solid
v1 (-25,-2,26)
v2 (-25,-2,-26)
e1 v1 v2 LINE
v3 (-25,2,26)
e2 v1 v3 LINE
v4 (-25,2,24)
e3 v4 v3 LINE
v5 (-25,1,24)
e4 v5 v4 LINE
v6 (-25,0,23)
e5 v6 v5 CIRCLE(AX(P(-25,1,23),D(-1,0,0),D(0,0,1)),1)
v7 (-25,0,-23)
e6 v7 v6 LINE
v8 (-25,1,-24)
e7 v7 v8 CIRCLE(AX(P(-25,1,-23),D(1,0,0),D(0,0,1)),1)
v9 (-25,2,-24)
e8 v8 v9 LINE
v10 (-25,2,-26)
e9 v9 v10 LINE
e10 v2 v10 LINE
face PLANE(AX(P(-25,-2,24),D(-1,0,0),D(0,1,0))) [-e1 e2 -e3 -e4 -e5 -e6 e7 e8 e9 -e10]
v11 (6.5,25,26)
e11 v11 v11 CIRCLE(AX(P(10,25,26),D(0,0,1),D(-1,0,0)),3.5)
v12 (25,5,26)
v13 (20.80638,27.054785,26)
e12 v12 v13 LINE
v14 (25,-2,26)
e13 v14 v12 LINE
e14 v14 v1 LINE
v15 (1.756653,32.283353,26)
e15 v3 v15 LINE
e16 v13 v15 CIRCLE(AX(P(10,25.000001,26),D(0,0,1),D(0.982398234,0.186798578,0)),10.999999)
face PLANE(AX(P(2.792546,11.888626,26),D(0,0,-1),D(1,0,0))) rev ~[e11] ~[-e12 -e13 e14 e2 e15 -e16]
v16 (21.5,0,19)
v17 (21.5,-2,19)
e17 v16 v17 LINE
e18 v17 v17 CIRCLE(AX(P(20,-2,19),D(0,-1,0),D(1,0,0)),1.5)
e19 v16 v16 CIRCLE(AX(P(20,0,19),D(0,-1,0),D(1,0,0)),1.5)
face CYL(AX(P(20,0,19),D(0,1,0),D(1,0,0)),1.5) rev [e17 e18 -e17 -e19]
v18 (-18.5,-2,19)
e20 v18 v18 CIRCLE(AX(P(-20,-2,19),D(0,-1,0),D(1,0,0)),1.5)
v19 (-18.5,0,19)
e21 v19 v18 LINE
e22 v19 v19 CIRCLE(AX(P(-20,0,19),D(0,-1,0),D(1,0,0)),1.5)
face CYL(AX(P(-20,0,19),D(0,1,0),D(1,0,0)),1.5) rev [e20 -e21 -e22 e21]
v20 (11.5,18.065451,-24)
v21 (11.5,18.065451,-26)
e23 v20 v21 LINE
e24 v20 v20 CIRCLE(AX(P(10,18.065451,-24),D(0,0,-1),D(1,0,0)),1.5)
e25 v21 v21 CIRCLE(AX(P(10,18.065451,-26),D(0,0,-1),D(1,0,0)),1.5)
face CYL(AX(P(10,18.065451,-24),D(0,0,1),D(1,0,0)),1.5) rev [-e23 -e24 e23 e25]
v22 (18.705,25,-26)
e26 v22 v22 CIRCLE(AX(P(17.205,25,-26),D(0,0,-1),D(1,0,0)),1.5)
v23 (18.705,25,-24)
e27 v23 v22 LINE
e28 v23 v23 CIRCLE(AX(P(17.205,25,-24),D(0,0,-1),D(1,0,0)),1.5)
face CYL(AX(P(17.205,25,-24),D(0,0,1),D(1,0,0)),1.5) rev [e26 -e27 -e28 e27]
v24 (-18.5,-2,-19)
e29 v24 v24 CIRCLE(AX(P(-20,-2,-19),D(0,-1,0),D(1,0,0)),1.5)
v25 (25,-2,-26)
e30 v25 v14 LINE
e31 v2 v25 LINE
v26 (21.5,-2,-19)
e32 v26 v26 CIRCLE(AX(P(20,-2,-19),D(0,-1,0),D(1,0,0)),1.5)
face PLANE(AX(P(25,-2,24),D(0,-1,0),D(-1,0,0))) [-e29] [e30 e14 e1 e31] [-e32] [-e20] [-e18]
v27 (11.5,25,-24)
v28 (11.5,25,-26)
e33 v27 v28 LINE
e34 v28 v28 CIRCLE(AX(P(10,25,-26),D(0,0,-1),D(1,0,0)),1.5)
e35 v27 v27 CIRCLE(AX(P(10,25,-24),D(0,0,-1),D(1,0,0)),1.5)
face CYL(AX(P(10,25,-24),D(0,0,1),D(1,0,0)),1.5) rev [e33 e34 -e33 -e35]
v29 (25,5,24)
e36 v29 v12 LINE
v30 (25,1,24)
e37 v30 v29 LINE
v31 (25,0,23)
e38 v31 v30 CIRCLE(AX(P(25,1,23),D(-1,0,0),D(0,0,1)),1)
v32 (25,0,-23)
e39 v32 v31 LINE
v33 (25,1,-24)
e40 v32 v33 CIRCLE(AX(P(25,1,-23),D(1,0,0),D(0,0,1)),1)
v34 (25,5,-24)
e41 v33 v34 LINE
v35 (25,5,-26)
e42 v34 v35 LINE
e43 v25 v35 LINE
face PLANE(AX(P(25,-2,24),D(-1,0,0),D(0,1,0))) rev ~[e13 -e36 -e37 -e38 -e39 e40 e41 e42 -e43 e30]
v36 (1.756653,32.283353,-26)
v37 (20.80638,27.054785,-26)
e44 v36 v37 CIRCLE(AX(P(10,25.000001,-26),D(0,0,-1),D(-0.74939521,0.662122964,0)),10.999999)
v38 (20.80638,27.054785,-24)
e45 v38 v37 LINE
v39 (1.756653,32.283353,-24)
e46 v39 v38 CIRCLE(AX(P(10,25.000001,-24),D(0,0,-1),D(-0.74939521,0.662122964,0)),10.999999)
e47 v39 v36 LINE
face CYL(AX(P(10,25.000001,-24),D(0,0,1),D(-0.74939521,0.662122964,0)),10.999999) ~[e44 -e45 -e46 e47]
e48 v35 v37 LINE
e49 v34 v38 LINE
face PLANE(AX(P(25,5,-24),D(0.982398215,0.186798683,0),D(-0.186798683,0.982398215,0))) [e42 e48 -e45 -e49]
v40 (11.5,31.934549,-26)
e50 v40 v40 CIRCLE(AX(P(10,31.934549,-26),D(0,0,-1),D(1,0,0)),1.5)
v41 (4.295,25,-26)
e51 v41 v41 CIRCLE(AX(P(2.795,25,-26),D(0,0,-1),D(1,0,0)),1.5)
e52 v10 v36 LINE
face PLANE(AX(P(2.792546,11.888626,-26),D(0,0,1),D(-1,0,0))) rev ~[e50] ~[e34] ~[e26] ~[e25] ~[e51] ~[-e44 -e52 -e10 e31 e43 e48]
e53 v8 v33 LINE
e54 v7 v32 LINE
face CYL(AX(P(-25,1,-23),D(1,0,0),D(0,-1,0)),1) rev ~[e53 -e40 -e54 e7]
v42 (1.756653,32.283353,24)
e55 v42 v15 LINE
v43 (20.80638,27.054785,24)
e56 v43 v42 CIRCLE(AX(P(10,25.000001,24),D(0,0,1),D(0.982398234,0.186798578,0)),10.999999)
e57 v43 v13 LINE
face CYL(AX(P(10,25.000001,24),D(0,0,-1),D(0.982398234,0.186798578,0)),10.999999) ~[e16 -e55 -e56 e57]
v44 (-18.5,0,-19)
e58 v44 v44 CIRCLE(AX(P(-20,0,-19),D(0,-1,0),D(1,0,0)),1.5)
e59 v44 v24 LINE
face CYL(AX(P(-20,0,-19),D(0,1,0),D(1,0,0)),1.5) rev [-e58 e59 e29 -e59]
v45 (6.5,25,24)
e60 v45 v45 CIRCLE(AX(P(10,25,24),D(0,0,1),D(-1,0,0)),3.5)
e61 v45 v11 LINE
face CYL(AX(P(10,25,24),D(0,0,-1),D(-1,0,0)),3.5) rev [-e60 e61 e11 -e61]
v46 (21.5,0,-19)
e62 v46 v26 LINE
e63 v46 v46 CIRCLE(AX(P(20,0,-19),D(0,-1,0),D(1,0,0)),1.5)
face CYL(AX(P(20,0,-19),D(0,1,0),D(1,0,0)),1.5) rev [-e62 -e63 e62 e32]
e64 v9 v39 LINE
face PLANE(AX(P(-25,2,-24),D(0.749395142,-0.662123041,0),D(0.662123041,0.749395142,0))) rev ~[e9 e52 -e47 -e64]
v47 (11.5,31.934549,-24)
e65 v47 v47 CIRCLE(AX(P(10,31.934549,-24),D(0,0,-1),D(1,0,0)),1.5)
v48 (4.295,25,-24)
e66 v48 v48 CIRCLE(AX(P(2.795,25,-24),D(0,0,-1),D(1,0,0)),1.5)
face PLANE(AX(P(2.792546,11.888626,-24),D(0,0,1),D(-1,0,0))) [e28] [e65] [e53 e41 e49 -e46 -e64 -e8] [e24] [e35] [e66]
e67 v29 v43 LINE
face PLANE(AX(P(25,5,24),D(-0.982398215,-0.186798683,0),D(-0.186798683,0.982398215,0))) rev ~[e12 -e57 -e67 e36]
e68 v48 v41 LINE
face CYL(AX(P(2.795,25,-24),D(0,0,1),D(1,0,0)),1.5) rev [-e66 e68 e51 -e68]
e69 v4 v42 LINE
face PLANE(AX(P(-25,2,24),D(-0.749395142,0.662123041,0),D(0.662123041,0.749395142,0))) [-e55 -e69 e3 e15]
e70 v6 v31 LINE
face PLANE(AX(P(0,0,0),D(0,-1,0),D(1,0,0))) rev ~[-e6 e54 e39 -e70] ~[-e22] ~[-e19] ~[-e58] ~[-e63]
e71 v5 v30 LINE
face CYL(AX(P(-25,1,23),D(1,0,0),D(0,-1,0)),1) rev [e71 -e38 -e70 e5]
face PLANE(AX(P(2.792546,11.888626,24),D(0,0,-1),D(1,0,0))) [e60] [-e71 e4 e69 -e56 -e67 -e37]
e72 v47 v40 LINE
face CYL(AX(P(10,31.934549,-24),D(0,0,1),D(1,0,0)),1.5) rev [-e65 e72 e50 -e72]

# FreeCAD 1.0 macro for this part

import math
import FreeCAD as App
import Part
import Sketcher
from FreeCAD import Vector


def edges_at(feature, points):
    """Names of the edges that pass closest to the given points."""
    edges = feature.Shape.Edges
    near = lambda p: min(range(len(edges)), key=lambda i: edges[i].distToShape(Part.Vertex(*p))[0])
    return sorted({f"Edge{near(p) + 1}" for p in points})

doc = App.newDocument("Part")
body = doc.addObject("PartDesign::Body", "Body")

# Sketch on XZ plane
sketch1 = body.newObject("Sketcher::SketchObject", "Sketch")
sketch1.AttachmentSupport = (doc.getObject("XZ_Plane"), [""])
sketch1.MapMode = "FlatFace"
sketch1.addGeometry(Part.LineSegment(Vector(-25, 24, 0), Vector(-25, -24, 0)), False)
sketch1.addGeometry(Part.LineSegment(Vector(-25, -24, 0), Vector(25, -24, 0)), False)
sketch1.addGeometry(Part.LineSegment(Vector(25, -24, 0), Vector(25, 24, 0)), False)
sketch1.addGeometry(Part.LineSegment(Vector(25, 24, 0), Vector(-25, 24, 0)), False)
sketch1.addGeometry(Part.Circle(Vector(-20, -19, 0), Vector(0, 0, 1), 1.5), False)
sketch1.addGeometry(Part.Circle(Vector(20, -19, 0), Vector(0, 0, 1), 1.5), False)
sketch1.addGeometry(Part.Circle(Vector(-20, 19, 0), Vector(0, 0, 1), 1.5), False)
sketch1.addGeometry(Part.Circle(Vector(20, 19, 0), Vector(0, 0, 1), 1.5), False)
sketch1.addConstraint(Sketcher.Constraint("Coincident", 0, 2, 1, 1))
sketch1.addConstraint(Sketcher.Constraint("Coincident", 1, 2, 2, 1))
sketch1.addConstraint(Sketcher.Constraint("Coincident", 2, 2, 3, 1))
sketch1.addConstraint(Sketcher.Constraint("Coincident", 3, 2, 0, 1))
sketch1.addConstraint(Sketcher.Constraint("Vertical", 0))
sketch1.addConstraint(Sketcher.Constraint("Horizontal", 1))
sketch1.addConstraint(Sketcher.Constraint("Vertical", 2))
sketch1.addConstraint(Sketcher.Constraint("Horizontal", 3))
sketch1.addConstraint(Sketcher.Constraint("Equal", 4, 5))
sketch1.addConstraint(Sketcher.Constraint("Equal", 5, 6))
sketch1.addConstraint(Sketcher.Constraint("Equal", 6, 7))
sketch1.addConstraint(Sketcher.Constraint("Symmetric", 5, 3, 6, 3, -1, 1))
sketch1.addConstraint(Sketcher.Constraint("Symmetric", 4, 3, 7, 3, -1, 1))
sketch1.addConstraint(Sketcher.Constraint("Symmetric", 0, 2, 2, 2, -1, 1))
sketch1.addConstraint(Sketcher.Constraint("Symmetric", 4, 3, 5, 3, -2))
sketch1.addConstraint(Sketcher.Constraint("Diameter", 4, 3.0))
sketch1.addConstraint(Sketcher.Constraint("DistanceX", 1, 1, 1, 2, 50.0))
sketch1.addConstraint(Sketcher.Constraint("DistanceY", 0, 2, 0, 1, 48.0))
sketch1.addConstraint(Sketcher.Constraint("DistanceX", 4, 3, -1, 1, 20.0))
sketch1.addConstraint(Sketcher.Constraint("DistanceY", 4, 3, -1, 1, 19.0))
pad1 = body.newObject("PartDesign::Pad", "Pad")
pad1.Profile = sketch1
pad1.Length = 2

# Sketch on XY plane
sketch2 = body.newObject("Sketcher::SketchObject", "Sketch001")
sketch2.AttachmentSupport = (doc.getObject("XY_Plane"), [""])
sketch2.MapMode = "FlatFace"
sketch2.AttachmentOffset = App.Placement(Vector(0, 0, -24), App.Rotation())
sketch2.addGeometry(Part.LineSegment(Vector(-25, -2, 0), Vector(-25, 2, 0)), False)
sketch2.addGeometry(Part.LineSegment(Vector(-25, 2, 0), Vector(1.8, 32.3, 0)), False)
sketch2.addGeometry(Part.ArcOfCircle(Part.Circle(Vector(10, 25, 0), Vector(0, 0, 1), 11), math.radians(11), math.radians(139)), False)
sketch2.addGeometry(Part.LineSegment(Vector(20.8, 27.1, 0), Vector(25, 5, 0)), False)
sketch2.addGeometry(Part.LineSegment(Vector(25, 5, 0), Vector(25, -2, 0)), False)
sketch2.addGeometry(Part.LineSegment(Vector(25, -2, 0), Vector(-25, -2, 0)), False)
sketch2.addGeometry(Part.Circle(Vector(10, 31.9, 0), Vector(0, 0, 1), 1.5), False)
sketch2.addGeometry(Part.Circle(Vector(17.2, 25, 0), Vector(0, 0, 1), 1.5), False)
sketch2.addGeometry(Part.Circle(Vector(10, 25, 0), Vector(0, 0, 1), 1.5), False)
sketch2.addGeometry(Part.Circle(Vector(10, 18.1, 0), Vector(0, 0, 1), 1.5), False)
sketch2.addGeometry(Part.Circle(Vector(2.8, 25, 0), Vector(0, 0, 1), 1.5), False)
sketch2.addConstraint(Sketcher.Constraint("Coincident", 0, 2, 1, 1))
sketch2.addConstraint(Sketcher.Constraint("Tangent", 1, 2, 2, 2))
sketch2.addConstraint(Sketcher.Constraint("Tangent", 2, 1, 3, 1))
sketch2.addConstraint(Sketcher.Constraint("Coincident", 3, 2, 4, 1))
sketch2.addConstraint(Sketcher.Constraint("Coincident", 4, 2, 5, 1))
sketch2.addConstraint(Sketcher.Constraint("Coincident", 5, 2, 0, 1))
sketch2.addConstraint(Sketcher.Constraint("Vertical", 0))
sketch2.addConstraint(Sketcher.Constraint("Vertical", 4))
sketch2.addConstraint(Sketcher.Constraint("Horizontal", 5))
sketch2.addConstraint(Sketcher.Constraint("Coincident", 8, 3, 2, 3))
sketch2.addConstraint(Sketcher.Constraint("Equal", 6, 7))
sketch2.addConstraint(Sketcher.Constraint("Equal", 7, 8))
sketch2.addConstraint(Sketcher.Constraint("Equal", 8, 9))
sketch2.addConstraint(Sketcher.Constraint("Equal", 9, 10))
sketch2.addConstraint(Sketcher.Constraint("Symmetric", 0, 2, 4, 2, -1, 1))
sketch2.addConstraint(Sketcher.Constraint("Horizontal", 2, 3, 7, 3))
sketch2.addConstraint(Sketcher.Constraint("Horizontal", 8, 3, 10, 3))
sketch2.addConstraint(Sketcher.Constraint("Vertical", 2, 3, 6, 3))
sketch2.addConstraint(Sketcher.Constraint("Vertical", 8, 3, 9, 3))
sketch2.addConstraint(Sketcher.Constraint("Diameter", 6, 3.0))
sketch2.addConstraint(Sketcher.Constraint("Radius", 2, 10.999999))
sketch2.addConstraint(Sketcher.Constraint("DistanceX", 5, 2, 5, 1, 50.0))
sketch2.addConstraint(Sketcher.Constraint("DistanceY", 0, 1, 0, 2, 4.0))
sketch2.addConstraint(Sketcher.Constraint("DistanceY", 4, 2, 4, 1, 7.0))
sketch2.addConstraint(Sketcher.Constraint("DistanceX", -1, 1, 2, 3, 10.0))
sketch2.addConstraint(Sketcher.Constraint("DistanceY", -1, 1, 2, 3, 25.000001))
sketch2.addConstraint(Sketcher.Constraint("DistanceX", 10, 3, 7, 3, 14.41))
sketch2.addConstraint(Sketcher.Constraint("DistanceX", -1, 1, 7, 3, 17.205))
sketch2.addConstraint(Sketcher.Constraint("DistanceY", 9, 3, 6, 3, 13.869098))
sketch2.addConstraint(Sketcher.Constraint("DistanceY", 9, 3, 1, 2, 14.217902))
pad2 = body.newObject("PartDesign::Pad", "Pad001")
pad2.Profile = sketch2
pad2.Length = 2
pad2.Reversed = True

# Sketch on XY plane
sketch3 = body.newObject("Sketcher::SketchObject", "Sketch002")
sketch3.AttachmentSupport = (doc.getObject("XY_Plane"), [""])
sketch3.MapMode = "FlatFace"
sketch3.AttachmentOffset = App.Placement(Vector(0, 0, 24), App.Rotation())
sketch3.addGeometry(Part.LineSegment(Vector(-25, -2, 0), Vector(25, -2, 0)), False)
sketch3.addGeometry(Part.LineSegment(Vector(25, -2, 0), Vector(25, 5, 0)), False)
sketch3.addGeometry(Part.LineSegment(Vector(25, 5, 0), Vector(20.8, 27.1, 0)), False)
sketch3.addGeometry(Part.ArcOfCircle(Part.Circle(Vector(10, 25, 0), Vector(0, 0, 1), 11), math.radians(11), math.radians(139)), False)
sketch3.addGeometry(Part.LineSegment(Vector(1.8, 32.3, 0), Vector(-25, 2, 0)), False)
sketch3.addGeometry(Part.LineSegment(Vector(-25, 2, 0), Vector(-25, -2, 0)), False)
sketch3.addGeometry(Part.Circle(Vector(10, 25, 0), Vector(0, 0, 1), 3.5), False)
sketch3.addConstraint(Sketcher.Constraint("Coincident", 0, 2, 1, 1))
sketch3.addConstraint(Sketcher.Constraint("Coincident", 1, 2, 2, 1))
sketch3.addConstraint(Sketcher.Constraint("Tangent", 2, 2, 3, 1))
sketch3.addConstraint(Sketcher.Constraint("Tangent", 3, 2, 4, 1))
sketch3.addConstraint(Sketcher.Constraint("Coincident", 4, 2, 5, 1))
sketch3.addConstraint(Sketcher.Constraint("Coincident", 5, 2, 0, 1))
sketch3.addConstraint(Sketcher.Constraint("Horizontal", 0))
sketch3.addConstraint(Sketcher.Constraint("Vertical", 1))
sketch3.addConstraint(Sketcher.Constraint("Vertical", 5))
sketch3.addConstraint(Sketcher.Constraint("Coincident", 6, 3, 3, 3))
sketch3.addConstraint(Sketcher.Constraint("Symmetric", 0, 2, 4, 2, -1, 1))
sketch3.addConstraint(Sketcher.Constraint("Diameter", 6, 7.0))
sketch3.addConstraint(Sketcher.Constraint("Radius", 3, 10.999999))
sketch3.addConstraint(Sketcher.Constraint("DistanceX", 0, 1, 0, 2, 50.0))
sketch3.addConstraint(Sketcher.Constraint("DistanceY", 1, 1, 1, 2, 7.0))
sketch3.addConstraint(Sketcher.Constraint("DistanceY", 5, 2, 5, 1, 4.0))
sketch3.addConstraint(Sketcher.Constraint("DistanceX", -1, 1, 3, 3, 10.0))
sketch3.addConstraint(Sketcher.Constraint("DistanceY", -1, 1, 3, 3, 25.000001))
pad3 = body.newObject("PartDesign::Pad", "Pad002")
pad3.Profile = sketch3
pad3.Length = 2
doc.recompute()

fillet = body.newObject("PartDesign::Fillet", "Fillet")
fillet.Base = (pad3, edges_at(pad3, [(0, 0, -24)]))
fillet.Radius = 1
doc.recompute()

fillet2 = body.newObject("PartDesign::Fillet", "Fillet001")
fillet2.Base = (fillet, edges_at(fillet, [(0, 0, 24)]))
fillet2.Radius = 1

doc.recompute()
